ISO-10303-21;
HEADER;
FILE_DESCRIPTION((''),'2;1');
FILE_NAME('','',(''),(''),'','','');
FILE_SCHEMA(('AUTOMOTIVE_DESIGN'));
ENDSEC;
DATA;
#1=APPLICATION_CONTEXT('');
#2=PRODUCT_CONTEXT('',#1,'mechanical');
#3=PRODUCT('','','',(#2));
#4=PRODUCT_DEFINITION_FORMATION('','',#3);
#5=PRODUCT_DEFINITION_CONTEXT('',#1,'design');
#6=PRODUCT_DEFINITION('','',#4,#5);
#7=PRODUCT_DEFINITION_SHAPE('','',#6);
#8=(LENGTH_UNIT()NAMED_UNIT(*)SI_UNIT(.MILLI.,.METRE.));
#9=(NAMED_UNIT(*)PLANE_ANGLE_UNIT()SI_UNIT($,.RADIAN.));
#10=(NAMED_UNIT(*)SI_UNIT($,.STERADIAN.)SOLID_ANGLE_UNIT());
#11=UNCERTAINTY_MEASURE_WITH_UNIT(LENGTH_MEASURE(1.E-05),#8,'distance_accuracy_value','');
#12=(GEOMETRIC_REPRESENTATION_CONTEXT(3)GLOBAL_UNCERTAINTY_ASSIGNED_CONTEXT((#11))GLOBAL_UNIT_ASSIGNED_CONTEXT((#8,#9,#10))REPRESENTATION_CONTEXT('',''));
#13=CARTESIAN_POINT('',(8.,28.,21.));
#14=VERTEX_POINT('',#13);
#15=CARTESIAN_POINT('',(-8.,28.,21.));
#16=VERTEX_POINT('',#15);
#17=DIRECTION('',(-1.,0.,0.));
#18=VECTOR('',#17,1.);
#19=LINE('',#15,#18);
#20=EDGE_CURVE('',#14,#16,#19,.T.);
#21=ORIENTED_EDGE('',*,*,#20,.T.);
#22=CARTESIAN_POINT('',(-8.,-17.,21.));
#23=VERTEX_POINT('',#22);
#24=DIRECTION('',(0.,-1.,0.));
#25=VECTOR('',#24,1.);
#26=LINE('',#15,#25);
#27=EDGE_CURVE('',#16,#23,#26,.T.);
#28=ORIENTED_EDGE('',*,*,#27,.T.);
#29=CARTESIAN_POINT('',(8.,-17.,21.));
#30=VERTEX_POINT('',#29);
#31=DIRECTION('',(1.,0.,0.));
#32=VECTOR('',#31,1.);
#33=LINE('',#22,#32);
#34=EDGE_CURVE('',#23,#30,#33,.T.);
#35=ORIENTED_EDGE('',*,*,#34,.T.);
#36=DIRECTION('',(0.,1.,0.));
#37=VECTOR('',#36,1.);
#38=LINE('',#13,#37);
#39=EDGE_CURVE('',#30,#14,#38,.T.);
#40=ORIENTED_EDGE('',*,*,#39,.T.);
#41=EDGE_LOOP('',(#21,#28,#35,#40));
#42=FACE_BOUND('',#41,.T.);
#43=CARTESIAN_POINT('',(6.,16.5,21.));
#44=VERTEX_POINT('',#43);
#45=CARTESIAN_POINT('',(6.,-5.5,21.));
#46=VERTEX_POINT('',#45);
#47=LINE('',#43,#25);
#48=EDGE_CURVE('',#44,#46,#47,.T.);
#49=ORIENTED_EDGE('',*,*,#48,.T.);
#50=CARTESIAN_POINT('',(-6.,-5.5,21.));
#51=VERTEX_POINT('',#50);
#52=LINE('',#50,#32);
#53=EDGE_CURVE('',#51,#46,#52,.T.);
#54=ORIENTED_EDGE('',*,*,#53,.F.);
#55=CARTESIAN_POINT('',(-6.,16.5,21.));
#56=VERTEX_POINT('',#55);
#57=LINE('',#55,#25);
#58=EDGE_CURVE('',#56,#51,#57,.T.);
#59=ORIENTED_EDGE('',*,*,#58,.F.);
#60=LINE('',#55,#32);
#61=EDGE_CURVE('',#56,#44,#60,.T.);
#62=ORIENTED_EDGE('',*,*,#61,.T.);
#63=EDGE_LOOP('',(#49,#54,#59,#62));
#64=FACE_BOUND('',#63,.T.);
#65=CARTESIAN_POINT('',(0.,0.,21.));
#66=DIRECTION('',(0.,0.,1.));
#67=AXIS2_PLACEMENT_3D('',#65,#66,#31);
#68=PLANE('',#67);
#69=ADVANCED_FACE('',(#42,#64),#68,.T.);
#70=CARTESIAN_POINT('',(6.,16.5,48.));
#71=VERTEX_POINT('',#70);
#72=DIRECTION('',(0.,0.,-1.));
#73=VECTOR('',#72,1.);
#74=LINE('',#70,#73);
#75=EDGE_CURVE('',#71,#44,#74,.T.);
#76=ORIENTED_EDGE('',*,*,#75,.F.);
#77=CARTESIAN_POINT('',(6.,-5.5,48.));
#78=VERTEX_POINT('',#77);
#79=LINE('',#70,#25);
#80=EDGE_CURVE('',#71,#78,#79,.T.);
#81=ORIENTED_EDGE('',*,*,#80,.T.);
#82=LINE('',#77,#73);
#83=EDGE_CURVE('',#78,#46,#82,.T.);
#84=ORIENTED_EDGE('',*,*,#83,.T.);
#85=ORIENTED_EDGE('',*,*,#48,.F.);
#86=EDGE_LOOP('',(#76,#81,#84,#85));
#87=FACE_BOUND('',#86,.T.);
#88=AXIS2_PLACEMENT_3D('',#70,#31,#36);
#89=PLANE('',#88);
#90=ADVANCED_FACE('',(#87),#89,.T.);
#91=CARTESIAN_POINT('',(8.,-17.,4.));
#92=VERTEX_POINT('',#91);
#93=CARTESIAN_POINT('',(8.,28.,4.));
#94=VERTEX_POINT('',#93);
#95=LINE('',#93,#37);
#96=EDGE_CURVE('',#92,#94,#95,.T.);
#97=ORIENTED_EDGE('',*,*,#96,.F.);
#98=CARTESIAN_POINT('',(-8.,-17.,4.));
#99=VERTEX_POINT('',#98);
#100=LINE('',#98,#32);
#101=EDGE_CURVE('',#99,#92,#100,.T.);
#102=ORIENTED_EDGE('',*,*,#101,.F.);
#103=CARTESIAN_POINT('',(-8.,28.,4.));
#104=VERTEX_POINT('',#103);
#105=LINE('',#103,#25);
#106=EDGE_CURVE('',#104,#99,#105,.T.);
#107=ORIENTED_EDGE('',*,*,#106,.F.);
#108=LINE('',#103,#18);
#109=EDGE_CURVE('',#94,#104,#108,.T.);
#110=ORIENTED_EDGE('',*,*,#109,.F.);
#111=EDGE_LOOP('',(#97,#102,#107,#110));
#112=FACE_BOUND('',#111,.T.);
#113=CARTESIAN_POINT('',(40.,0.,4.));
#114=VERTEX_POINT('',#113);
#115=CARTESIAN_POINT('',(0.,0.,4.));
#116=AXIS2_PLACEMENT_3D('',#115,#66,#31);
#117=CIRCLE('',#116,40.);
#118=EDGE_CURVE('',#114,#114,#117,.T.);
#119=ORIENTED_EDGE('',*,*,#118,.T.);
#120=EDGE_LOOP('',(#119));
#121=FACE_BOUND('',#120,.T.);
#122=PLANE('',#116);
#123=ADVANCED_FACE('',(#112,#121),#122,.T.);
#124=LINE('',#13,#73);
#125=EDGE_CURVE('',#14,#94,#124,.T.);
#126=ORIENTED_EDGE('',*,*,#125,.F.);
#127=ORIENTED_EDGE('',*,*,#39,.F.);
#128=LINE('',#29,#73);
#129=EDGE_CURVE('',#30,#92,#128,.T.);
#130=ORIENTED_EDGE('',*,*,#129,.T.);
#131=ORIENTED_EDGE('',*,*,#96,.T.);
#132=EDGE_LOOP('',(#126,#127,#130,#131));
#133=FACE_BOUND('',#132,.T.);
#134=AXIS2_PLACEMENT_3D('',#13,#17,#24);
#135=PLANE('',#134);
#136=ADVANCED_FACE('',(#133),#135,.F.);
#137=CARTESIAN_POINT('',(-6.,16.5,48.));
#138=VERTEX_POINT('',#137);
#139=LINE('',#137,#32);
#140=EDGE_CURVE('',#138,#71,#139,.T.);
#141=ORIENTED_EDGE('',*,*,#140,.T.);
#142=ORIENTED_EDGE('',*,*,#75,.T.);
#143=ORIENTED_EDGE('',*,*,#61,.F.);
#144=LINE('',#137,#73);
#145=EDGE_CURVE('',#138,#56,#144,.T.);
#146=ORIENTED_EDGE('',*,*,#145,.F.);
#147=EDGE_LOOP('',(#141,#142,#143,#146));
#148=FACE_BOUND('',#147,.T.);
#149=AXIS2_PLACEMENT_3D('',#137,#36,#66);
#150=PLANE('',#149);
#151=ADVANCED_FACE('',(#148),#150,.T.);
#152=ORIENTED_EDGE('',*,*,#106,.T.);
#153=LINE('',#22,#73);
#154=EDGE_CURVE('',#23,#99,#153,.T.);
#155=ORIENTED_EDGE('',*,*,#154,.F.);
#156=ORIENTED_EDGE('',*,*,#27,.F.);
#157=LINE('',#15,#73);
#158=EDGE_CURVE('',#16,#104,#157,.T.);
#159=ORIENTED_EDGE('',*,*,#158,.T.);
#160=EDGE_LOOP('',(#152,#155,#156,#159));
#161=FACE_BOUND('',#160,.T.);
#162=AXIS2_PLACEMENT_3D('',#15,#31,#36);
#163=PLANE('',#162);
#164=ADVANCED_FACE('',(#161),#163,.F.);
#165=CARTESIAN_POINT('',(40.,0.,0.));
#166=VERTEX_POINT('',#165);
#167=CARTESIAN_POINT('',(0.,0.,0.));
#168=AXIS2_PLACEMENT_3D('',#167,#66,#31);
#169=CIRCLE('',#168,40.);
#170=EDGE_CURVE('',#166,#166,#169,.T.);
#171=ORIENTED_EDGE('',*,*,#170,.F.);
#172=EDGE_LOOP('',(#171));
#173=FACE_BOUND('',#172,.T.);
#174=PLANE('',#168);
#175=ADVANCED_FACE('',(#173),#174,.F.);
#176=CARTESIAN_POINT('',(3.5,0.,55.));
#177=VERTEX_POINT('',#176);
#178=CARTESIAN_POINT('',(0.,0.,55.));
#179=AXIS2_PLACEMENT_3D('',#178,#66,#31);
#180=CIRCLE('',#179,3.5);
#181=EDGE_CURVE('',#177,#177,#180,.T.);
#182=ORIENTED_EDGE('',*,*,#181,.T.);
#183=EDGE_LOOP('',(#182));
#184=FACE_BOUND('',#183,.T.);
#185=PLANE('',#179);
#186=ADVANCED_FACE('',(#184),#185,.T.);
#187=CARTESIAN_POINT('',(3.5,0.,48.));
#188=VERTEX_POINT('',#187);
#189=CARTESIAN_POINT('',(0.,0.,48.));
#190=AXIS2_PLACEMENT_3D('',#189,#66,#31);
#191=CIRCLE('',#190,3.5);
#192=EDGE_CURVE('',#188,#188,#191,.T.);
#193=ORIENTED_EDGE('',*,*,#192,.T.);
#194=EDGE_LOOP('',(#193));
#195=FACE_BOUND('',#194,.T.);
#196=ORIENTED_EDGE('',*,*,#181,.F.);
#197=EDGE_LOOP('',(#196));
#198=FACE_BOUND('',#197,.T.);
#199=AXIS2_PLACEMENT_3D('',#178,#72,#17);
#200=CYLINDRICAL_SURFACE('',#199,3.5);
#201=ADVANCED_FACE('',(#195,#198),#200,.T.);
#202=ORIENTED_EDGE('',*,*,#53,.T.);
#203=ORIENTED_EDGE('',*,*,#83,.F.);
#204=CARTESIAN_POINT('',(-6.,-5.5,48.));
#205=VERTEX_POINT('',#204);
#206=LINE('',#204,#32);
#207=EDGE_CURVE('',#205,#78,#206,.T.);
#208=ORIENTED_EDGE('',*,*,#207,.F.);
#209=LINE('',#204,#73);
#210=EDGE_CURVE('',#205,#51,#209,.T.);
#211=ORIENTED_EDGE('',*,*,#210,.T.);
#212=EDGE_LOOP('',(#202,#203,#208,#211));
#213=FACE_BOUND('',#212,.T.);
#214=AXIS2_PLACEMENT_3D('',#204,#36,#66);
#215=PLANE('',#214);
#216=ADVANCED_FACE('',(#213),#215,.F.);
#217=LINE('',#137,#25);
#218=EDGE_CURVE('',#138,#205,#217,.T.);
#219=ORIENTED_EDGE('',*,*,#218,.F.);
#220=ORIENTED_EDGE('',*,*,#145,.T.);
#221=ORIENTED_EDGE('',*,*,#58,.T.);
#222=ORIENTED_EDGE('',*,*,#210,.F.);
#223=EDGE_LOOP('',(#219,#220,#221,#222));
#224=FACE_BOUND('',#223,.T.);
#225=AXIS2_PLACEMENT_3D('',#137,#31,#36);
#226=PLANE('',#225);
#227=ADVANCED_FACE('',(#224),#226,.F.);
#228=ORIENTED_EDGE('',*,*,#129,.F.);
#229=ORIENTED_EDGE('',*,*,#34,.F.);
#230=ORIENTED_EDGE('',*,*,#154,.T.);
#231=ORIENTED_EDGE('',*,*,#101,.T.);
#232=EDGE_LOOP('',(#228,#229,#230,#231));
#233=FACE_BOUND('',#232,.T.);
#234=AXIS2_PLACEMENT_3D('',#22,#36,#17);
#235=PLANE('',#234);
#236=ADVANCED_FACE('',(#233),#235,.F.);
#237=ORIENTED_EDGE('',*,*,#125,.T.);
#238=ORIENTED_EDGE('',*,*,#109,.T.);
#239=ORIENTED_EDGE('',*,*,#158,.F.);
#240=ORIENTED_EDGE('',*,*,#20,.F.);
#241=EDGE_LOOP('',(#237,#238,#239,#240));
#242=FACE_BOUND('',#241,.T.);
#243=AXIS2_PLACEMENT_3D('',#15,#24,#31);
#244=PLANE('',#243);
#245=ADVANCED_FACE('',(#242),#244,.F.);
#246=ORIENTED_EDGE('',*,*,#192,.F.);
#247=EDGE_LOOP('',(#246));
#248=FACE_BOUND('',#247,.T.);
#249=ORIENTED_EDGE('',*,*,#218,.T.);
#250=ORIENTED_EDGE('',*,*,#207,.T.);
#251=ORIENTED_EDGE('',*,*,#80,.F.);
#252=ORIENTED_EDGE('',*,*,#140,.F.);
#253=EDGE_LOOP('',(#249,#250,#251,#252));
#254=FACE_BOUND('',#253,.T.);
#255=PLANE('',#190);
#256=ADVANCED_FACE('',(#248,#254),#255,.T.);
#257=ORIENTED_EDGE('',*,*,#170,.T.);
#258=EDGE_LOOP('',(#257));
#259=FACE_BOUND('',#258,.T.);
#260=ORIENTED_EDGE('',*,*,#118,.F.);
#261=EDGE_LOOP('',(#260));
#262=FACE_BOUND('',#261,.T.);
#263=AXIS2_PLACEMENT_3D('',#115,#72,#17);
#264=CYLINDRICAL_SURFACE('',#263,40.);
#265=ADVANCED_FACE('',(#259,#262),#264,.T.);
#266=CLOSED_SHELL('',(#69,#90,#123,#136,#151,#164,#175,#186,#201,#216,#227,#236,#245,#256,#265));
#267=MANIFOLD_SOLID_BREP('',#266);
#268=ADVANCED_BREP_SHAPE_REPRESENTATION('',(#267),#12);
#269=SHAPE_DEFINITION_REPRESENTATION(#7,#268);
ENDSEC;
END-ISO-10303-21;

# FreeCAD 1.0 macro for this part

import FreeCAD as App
import Part
import Sketcher

V = App.Vector

doc = App.newDocument("Part")
body = doc.addObject("PartDesign::Body", "Body")

sketch1 = body.newObject("Sketcher::SketchObject", "Sketch")
sketch1.AttachmentSupport = (doc.getObject("XY_Plane"), [""])
sketch1.MapMode = "FlatFace"
sketch1.addGeometry(Part.Circle(V(0, 0, 0), V(0, 0, 1), 40), False)
sketch1.addConstraint([
    Sketcher.Constraint("Coincident", 0, 3, -1, 1),
    Sketcher.Constraint("Diameter", 0, 80.0),
])
pad1 = body.newObject("PartDesign::Pad", "Pad")
pad1.Profile = sketch1
pad1.Length = 4

sketch2 = body.newObject("Sketcher::SketchObject", "Sketch001")
sketch2.AttachmentSupport = (doc.getObject("XY_Plane"), [""])
sketch2.MapMode = "FlatFace"
sketch2.AttachmentOffset = App.Placement(V(0, 0, 4), App.Rotation())
sketch2.addGeometry([
    Part.LineSegment(V(-8, 28, 0), V(-8, -17, 0)),
    Part.LineSegment(V(-8, -17, 0), V(8, -17, 0)),
    Part.LineSegment(V(8, -17, 0), V(8, 28, 0)),
    Part.LineSegment(V(8, 28, 0), V(-8, 28, 0)),
], False)
sketch2.addConstraint([
    Sketcher.Constraint("Coincident", 0, 2, 1, 1),
    Sketcher.Constraint("Coincident", 1, 2, 2, 1),
    Sketcher.Constraint("Coincident", 2, 2, 3, 1),
    Sketcher.Constraint("Coincident", 3, 2, 0, 1),
    Sketcher.Constraint("Vertical", 0),
    Sketcher.Constraint("Horizontal", 1),
    Sketcher.Constraint("Vertical", 2),
    Sketcher.Constraint("Horizontal", 3),
    Sketcher.Constraint("DistanceX", 1, 1, 1, 2, 16.0),
    Sketcher.Constraint("DistanceY", 0, 2, 0, 1, 45.0),
    Sketcher.Constraint("DistanceX", 0, 2, -1, 1, 8.0),
    Sketcher.Constraint("DistanceY", 0, 2, -1, 1, 17.0),
])
pad2 = body.newObject("PartDesign::Pad", "Pad001")
pad2.Profile = sketch2
pad2.Length = 17

sketch3 = body.newObject("Sketcher::SketchObject", "Sketch002")
sketch3.AttachmentSupport = (doc.getObject("XY_Plane"), [""])
sketch3.MapMode = "FlatFace"
sketch3.AttachmentOffset = App.Placement(V(0, 0, 21), App.Rotation())
sketch3.addGeometry([
    Part.LineSegment(V(-6, 16, 0), V(-6, -6, 0)),
    Part.LineSegment(V(-6, -6, 0), V(6, -6, 0)),
    Part.LineSegment(V(6, -6, 0), V(6, 16, 0)),
    Part.LineSegment(V(6, 16, 0), V(-6, 16, 0)),
], False)
sketch3.addConstraint([
    Sketcher.Constraint("Coincident", 0, 2, 1, 1),
    Sketcher.Constraint("Coincident", 1, 2, 2, 1),
    Sketcher.Constraint("Coincident", 2, 2, 3, 1),
    Sketcher.Constraint("Coincident", 3, 2, 0, 1),
    Sketcher.Constraint("Vertical", 0),
    Sketcher.Constraint("Horizontal", 1),
    Sketcher.Constraint("Vertical", 2),
    Sketcher.Constraint("Horizontal", 3),
    Sketcher.Constraint("DistanceX", 1, 1, 1, 2, 12.0),
    Sketcher.Constraint("DistanceY", 0, 2, 0, 1, 22.0),
    Sketcher.Constraint("DistanceX", 0, 2, -1, 1, 6.0),
    Sketcher.Constraint("DistanceY", 0, 2, -1, 1, 5.5),
])
pad3 = body.newObject("PartDesign::Pad", "Pad002")
pad3.Profile = sketch3
pad3.Length = 27

sketch4 = body.newObject("Sketcher::SketchObject", "Sketch003")
sketch4.AttachmentSupport = (doc.getObject("XY_Plane"), [""])
sketch4.MapMode = "FlatFace"
sketch4.AttachmentOffset = App.Placement(V(0, 0, 48), App.Rotation())
sketch4.addGeometry(Part.Circle(V(0, 0, 0), V(0, 0, 1), 3.5), False)
sketch4.addConstraint([
    Sketcher.Constraint("Coincident", 0, 3, -1, 1),
    Sketcher.Constraint("Diameter", 0, 7.0),
])
pad4 = body.newObject("PartDesign::Pad", "Pad003")
pad4.Profile = sketch4
pad4.Length = 7

doc.recompute()
